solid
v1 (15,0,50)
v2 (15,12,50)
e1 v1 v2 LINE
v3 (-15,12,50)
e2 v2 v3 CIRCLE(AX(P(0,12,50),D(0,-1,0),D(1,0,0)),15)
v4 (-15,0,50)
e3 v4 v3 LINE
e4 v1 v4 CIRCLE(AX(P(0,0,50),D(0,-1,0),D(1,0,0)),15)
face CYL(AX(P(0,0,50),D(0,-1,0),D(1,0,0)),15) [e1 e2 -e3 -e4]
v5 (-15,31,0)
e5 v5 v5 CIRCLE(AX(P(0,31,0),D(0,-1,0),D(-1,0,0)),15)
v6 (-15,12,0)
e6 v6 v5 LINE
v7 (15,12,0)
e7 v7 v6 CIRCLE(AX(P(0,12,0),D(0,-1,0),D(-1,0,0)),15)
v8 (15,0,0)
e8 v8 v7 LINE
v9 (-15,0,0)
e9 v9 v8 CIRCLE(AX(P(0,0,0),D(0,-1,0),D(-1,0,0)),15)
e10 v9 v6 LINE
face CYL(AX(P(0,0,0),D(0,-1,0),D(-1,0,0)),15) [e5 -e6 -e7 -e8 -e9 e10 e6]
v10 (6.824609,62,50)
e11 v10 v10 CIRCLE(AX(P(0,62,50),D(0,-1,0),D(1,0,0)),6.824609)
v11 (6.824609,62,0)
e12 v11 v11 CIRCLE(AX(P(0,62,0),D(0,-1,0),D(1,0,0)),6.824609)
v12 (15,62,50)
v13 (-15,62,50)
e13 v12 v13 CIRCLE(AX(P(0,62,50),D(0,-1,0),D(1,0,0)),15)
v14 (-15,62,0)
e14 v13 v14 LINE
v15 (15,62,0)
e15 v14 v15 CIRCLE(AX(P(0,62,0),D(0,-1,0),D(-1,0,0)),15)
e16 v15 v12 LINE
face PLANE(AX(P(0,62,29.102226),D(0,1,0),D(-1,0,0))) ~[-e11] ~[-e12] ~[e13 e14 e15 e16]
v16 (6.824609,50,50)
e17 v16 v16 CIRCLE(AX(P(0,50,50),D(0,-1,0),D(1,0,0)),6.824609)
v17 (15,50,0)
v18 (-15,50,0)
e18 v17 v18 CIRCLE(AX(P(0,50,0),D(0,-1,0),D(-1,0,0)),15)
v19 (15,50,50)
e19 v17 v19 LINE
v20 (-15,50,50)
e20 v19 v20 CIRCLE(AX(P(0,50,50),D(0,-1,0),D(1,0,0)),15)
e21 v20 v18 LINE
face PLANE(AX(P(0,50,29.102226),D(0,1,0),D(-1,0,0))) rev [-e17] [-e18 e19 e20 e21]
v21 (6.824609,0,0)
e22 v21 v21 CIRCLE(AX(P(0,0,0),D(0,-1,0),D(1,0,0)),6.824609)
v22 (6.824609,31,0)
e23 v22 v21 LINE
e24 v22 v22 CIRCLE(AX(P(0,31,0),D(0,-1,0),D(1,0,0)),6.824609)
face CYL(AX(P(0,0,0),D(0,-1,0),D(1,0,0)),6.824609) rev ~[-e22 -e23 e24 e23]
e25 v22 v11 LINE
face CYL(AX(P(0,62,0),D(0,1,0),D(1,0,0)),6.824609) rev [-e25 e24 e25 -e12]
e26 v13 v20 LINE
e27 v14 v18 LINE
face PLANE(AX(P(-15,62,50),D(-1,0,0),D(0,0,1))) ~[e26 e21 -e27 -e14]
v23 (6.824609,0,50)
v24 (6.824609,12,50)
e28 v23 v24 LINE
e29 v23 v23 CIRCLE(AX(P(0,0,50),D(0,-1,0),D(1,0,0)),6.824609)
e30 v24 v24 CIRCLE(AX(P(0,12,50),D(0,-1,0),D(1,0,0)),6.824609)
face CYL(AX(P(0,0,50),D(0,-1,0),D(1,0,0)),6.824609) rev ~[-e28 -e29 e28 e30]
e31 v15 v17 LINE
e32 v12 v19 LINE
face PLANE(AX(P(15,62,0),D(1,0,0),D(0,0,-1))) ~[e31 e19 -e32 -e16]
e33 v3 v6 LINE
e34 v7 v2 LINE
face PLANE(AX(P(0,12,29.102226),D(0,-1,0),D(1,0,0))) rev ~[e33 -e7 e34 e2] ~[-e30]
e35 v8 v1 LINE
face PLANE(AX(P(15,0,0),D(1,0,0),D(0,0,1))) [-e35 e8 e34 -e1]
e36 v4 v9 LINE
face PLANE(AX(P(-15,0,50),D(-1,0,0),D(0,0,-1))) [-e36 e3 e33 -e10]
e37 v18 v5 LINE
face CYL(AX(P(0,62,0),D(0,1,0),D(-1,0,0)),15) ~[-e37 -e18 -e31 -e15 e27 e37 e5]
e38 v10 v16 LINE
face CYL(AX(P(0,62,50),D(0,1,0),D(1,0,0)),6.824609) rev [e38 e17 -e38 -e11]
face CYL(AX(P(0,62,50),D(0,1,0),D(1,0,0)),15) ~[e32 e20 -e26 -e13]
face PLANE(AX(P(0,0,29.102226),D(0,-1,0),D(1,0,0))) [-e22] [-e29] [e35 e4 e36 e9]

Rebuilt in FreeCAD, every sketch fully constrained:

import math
import FreeCAD as App
import Part
import Sketcher

V = App.Vector

doc = App.newDocument("Part")
params = doc.addObject("Spreadsheet::Sheet", "Params")
for row, (alias, value) in enumerate([
    ("sketch1_radius", "15 mm"),
    ("sketch1_height", "50 mm"),
    ("pad1_length", "12 mm"),
    ("sketch2_diameter", "30 mm"),
    ("pad2_length", "31 mm"),
], start=1):
    params.set(f"A{row}", alias)
    params.set(f"B{row}", "=" + value)
    params.setAlias(f"B{row}", alias)

body = doc.addObject("PartDesign::Body", "Body")

# Sketch on XZ plane
sketch1 = doc.addObject("Sketcher::SketchObject", "Sketch")
body.addObject(sketch1)
sketch1.AttachmentSupport = (doc.XZ_Plane, [""])
sketch1.MapMode = "FlatFace"
sketch1.addGeometry(Part.ArcOfCircle(Part.Circle(V(0, 50, 0), V(0, 0, 1), 15), math.radians(0), math.radians(180)), False)
sketch1.addGeometry(Part.LineSegment(V(-15, 50, 0), V(-15, 0, 0)), False)
sketch1.addGeometry(Part.ArcOfCircle(Part.Circle(V(0, 0, 0), V(0, 0, 1), 15), math.radians(180), math.radians(360)), False)
sketch1.addGeometry(Part.LineSegment(V(15, 0, 0), V(15, 50, 0)), False)
sketch1.addGeometry(Part.Circle(V(0, 0, 0), V(0, 0, 1), 7), False)
sketch1.addGeometry(Part.Circle(V(0, 50, 0), V(0, 0, 1), 7), False)
sketch1.addConstraint(Sketcher.Constraint("Tangent", 0, 2, 1, 1))
sketch1.addConstraint(Sketcher.Constraint("Tangent", 1, 2, 2, 1))
sketch1.addConstraint(Sketcher.Constraint("Tangent", 2, 2, 3, 1))
sketch1.addConstraint(Sketcher.Constraint("Tangent", 3, 2, 0, 1))
sketch1.addConstraint(Sketcher.Constraint("Vertical", 1))
sketch1.addConstraint(Sketcher.Constraint("Vertical", 3))
sketch1.addConstraint(Sketcher.Constraint("Coincident", 2, 3, -1, 1))
sketch1.addConstraint(Sketcher.Constraint("Coincident", 4, 3, -1, 1))
sketch1.addConstraint(Sketcher.Constraint("Coincident", 5, 3, 0, 3))
sketch1.addConstraint(Sketcher.Constraint("Equal", 4, 5))
sketch1.addConstraint(Sketcher.Constraint("Radius", 0, 15.0))
sketch1.addConstraint(Sketcher.Constraint("DistanceY", 1, 2, 1, 1, 50.0))
sketch1.addConstraint(Sketcher.Constraint("Diameter", 4, 13.649218))
sketch1.setExpression("Constraints[10]", "Params.sketch1_radius")
sketch1.setExpression("Constraints[11]", "Params.sketch1_height")
pad1 = doc.addObject("PartDesign::Pad", "Pad")
body.addObject(pad1)
pad1.Profile = sketch1
pad1.setExpression("Length", "Params.pad1_length")
pad1.Reversed = True

# Sketch on XZ plane
sketch2 = doc.addObject("Sketcher::SketchObject", "Sketch001")
body.addObject(sketch2)
sketch2.AttachmentSupport = (doc.XZ_Plane, [""])
sketch2.MapMode = "FlatFace"
sketch2.addGeometry(Part.Circle(V(0, 0, 0), V(0, 0, 1), 15), False)
sketch2.addGeometry(Part.Circle(V(0, 0, 0), V(0, 0, 1), 7), False)
sketch2.addConstraint(Sketcher.Constraint("Coincident", 0, 3, -1, 1))
sketch2.addConstraint(Sketcher.Constraint("Coincident", 1, 3, -1, 1))
sketch2.addConstraint(Sketcher.Constraint("Diameter", 0, 30.0))
sketch2.addConstraint(Sketcher.Constraint("Diameter", 1, 13.649218))
sketch2.setExpression("Constraints[2]", "Params.sketch2_diameter")
pad2 = doc.addObject("PartDesign::Pad", "Pad001")
body.addObject(pad2)
pad2.Profile = sketch2
pad2.setExpression("Length", "Params.pad2_length")
pad2.Reversed = True
body2 = doc.addObject("PartDesign::Body", "Body001")
doc.recompute()

body2.BaseFeature = body
doc.recompute()

mirroring = doc.addObject("Part::Mirroring", "Mirroring")
mirroring.Source = body
mirroring.Base = V(0, 31, 0)
mirroring.Normal = V(0, 1, 0)
body3 = doc.addObject("PartDesign::Body", "Body002")
body3.BaseFeature = mirroring
boolean = doc.addObject("PartDesign::Boolean", "Boolean")
body2.addObject(boolean)
boolean.Type = "Fuse"
boolean.addObjects([body3])
doc.recompute()
mirroring.Visibility = False

doc.recompute()
